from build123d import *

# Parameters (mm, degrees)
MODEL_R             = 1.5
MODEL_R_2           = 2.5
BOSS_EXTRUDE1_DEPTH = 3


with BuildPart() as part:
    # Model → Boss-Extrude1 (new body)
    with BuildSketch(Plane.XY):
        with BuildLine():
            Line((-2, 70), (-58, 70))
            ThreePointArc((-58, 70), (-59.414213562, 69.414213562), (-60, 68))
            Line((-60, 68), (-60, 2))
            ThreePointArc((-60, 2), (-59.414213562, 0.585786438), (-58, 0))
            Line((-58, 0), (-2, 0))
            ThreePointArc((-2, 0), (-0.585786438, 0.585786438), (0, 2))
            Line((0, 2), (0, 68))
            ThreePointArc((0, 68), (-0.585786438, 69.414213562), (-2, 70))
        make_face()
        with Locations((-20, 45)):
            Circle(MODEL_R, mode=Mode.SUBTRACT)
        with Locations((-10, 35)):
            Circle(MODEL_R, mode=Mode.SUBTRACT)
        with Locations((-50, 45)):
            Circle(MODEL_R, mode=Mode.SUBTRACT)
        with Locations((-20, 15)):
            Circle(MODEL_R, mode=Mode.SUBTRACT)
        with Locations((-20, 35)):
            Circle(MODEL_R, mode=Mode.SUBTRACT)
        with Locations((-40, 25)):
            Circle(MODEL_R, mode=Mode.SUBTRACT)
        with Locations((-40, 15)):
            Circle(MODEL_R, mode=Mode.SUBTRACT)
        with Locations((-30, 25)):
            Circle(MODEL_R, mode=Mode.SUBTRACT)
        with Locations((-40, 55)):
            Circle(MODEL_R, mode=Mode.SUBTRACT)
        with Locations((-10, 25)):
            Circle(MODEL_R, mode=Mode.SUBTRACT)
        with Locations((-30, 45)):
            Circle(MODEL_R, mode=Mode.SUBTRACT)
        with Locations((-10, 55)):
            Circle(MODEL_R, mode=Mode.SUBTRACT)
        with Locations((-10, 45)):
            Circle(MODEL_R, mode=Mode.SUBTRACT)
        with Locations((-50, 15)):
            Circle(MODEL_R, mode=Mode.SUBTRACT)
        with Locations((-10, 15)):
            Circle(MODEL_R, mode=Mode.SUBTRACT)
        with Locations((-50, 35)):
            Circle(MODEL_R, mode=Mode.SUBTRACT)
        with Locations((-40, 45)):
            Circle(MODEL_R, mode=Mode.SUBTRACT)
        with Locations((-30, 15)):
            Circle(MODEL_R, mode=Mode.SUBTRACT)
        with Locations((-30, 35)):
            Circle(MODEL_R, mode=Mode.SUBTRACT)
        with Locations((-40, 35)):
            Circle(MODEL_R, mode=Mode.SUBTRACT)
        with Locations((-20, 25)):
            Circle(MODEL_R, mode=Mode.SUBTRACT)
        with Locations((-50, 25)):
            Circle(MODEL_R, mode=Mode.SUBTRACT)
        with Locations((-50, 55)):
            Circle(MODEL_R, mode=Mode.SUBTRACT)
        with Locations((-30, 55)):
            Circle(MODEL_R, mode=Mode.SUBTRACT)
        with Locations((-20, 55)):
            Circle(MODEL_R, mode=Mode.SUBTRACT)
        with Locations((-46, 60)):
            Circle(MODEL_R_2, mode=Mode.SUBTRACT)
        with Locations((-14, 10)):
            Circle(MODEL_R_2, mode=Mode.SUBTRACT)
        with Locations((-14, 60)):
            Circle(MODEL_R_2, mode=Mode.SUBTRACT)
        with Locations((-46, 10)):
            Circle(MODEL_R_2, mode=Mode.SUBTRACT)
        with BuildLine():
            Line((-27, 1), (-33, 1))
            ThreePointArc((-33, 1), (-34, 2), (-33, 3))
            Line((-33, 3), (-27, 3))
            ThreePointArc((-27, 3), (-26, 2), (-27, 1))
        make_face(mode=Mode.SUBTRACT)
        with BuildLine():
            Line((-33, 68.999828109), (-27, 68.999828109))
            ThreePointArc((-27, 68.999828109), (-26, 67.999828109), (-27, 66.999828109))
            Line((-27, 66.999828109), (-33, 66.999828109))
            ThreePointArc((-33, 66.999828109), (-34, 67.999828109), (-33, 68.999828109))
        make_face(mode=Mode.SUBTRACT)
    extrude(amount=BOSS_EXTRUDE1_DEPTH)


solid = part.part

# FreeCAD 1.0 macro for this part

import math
import FreeCAD as App
import Part
import Sketcher
from FreeCAD import Vector
Q = App.Units.Quantity

doc = App.newDocument("Part")
params = doc.addObject("Spreadsheet::Sheet", "Params")
for row, (alias, value) in enumerate([
    ("sketch1_diameter", "3 mm"),
    ("sketch1_diameter2", "5 mm"),
    ("sketch1_radius", "2 mm"),
    ("sketch1_radius2", "1 mm"),
    ("sketch1_width", "56 mm"),
    ("pad1_length", "3 mm"),
], start=1):
    params.set(f"A{row}", alias)
    params.set(f"B{row}", "=" + value)
    params.setAlias(f"B{row}", alias)

body = doc.addObject("PartDesign::Body", "Body")

sketch1 = doc.addObject("Sketcher::SketchObject", "Sketch")
body.addObject(sketch1)
sketch1.AttachmentSupport = (doc.XY_Plane, [""])
sketch1.MapMode = "FlatFace"
sketch1.addGeometry([
    Part.LineSegment(Vector(-2, 70, 0), Vector(-58, 70, 0)),
    Part.ArcOfCircle(Part.Circle(Vector(-58, 68, 0), Vector(0, 0, 1), 2), math.radians(90), math.radians(180)),
    Part.LineSegment(Vector(-60, 68, 0), Vector(-60, 2, 0)),
    Part.ArcOfCircle(Part.Circle(Vector(-58, 2, 0), Vector(0, 0, 1), 2), math.radians(-180), math.radians(-90)),
    Part.LineSegment(Vector(-58, 0, 0), Vector(-2, 0, 0)),
    Part.ArcOfCircle(Part.Circle(Vector(-2, 2, 0), Vector(0, 0, 1), 2), math.radians(-90), math.radians(0)),
    Part.LineSegment(Vector(0, 2, 0), Vector(0, 68, 0)),
    Part.ArcOfCircle(Part.Circle(Vector(-2, 68, 0), Vector(0, 0, 1), 2), math.radians(0), math.radians(90)),
    Part.Circle(Vector(-50, 15, 0), Vector(0, 0, 1), 1.5),
    Part.Circle(Vector(-46, 10, 0), Vector(0, 0, 1), 2.5),
    Part.Circle(Vector(-40, 15, 0), Vector(0, 0, 1), 1.5),
    Part.Circle(Vector(-50, 25, 0), Vector(0, 0, 1), 1.5),
    Part.Circle(Vector(-40, 25, 0), Vector(0, 0, 1), 1.5),
    Part.ArcOfCircle(Part.Circle(Vector(-27, 2, 0), Vector(0, 0, 1), 1), math.radians(-90), math.radians(90)),
    Part.LineSegment(Vector(-27, 1, 0), Vector(-33, 1, 0)),
    Part.ArcOfCircle(Part.Circle(Vector(-33, 2, 0), Vector(0, 0, 1), 1), math.radians(90), math.radians(270)),
    Part.LineSegment(Vector(-33, 3, 0), Vector(-27, 3, 0)),
    Part.Circle(Vector(-30, 15, 0), Vector(0, 0, 1), 1.5),
    Part.Circle(Vector(-20, 15, 0), Vector(0, 0, 1), 1.5),
    Part.Circle(Vector(-14, 10, 0), Vector(0, 0, 1), 2.5),
    Part.Circle(Vector(-10, 15, 0), Vector(0, 0, 1), 1.5),
    Part.Circle(Vector(-30, 25, 0), Vector(0, 0, 1), 1.5),
    Part.Circle(Vector(-20, 25, 0), Vector(0, 0, 1), 1.5),
    Part.Circle(Vector(-10, 25, 0), Vector(0, 0, 1), 1.5),
    Part.Circle(Vector(-50, 35, 0), Vector(0, 0, 1), 1.5),
    Part.Circle(Vector(-50, 45, 0), Vector(0, 0, 1), 1.5),
    Part.Circle(Vector(-40, 35, 0), Vector(0, 0, 1), 1.5),
    Part.Circle(Vector(-40, 45, 0), Vector(0, 0, 1), 1.5),
    Part.Circle(Vector(-50, 55, 0), Vector(0, 0, 1), 1.5),
    Part.Circle(Vector(-46, 60, 0), Vector(0, 0, 1), 2.5),
    Part.Circle(Vector(-40, 55, 0), Vector(0, 0, 1), 1.5),
    Part.Circle(Vector(-30, 35, 0), Vector(0, 0, 1), 1.5),
    Part.Circle(Vector(-20, 35, 0), Vector(0, 0, 1), 1.5),
    Part.Circle(Vector(-30, 45, 0), Vector(0, 0, 1), 1.5),
    Part.Circle(Vector(-20, 45, 0), Vector(0, 0, 1), 1.5),
    Part.Circle(Vector(-10, 35, 0), Vector(0, 0, 1), 1.5),
    Part.Circle(Vector(-10, 45, 0), Vector(0, 0, 1), 1.5),
    Part.Circle(Vector(-30, 55, 0), Vector(0, 0, 1), 1.5),
    Part.Circle(Vector(-20, 55, 0), Vector(0, 0, 1), 1.5),
    Part.ArcOfCircle(Part.Circle(Vector(-33, 67.999828, 0), Vector(0, 0, 1), 1), math.radians(90), math.radians(270)),
    Part.LineSegment(Vector(-33, 68.999828, 0), Vector(-27, 68.999828, 0)),
    Part.ArcOfCircle(Part.Circle(Vector(-27, 67.999828, 0), Vector(0, 0, 1), 1), math.radians(-90), math.radians(90)),
    Part.LineSegment(Vector(-27, 66.999828, 0), Vector(-33, 66.999828, 0)),
    Part.Circle(Vector(-14, 60, 0), Vector(0, 0, 1), 2.5),
    Part.Circle(Vector(-10, 55, 0), Vector(0, 0, 1), 1.5),
], False)
sketch1.addConstraint([
    Sketcher.Constraint("Tangent", 0, 2, 1, 1),
    Sketcher.Constraint("Tangent", 1, 2, 2, 1),
    Sketcher.Constraint("Tangent", 2, 2, 3, 1),
    Sketcher.Constraint("Tangent", 3, 2, 4, 1),
    Sketcher.Constraint("Tangent", 4, 2, 5, 1),
    Sketcher.Constraint("Tangent", 5, 2, 6, 1),
    Sketcher.Constraint("Tangent", 6, 2, 7, 1),
    Sketcher.Constraint("Tangent", 7, 2, 0, 1),
    Sketcher.Constraint("Tangent", 13, 1, 14, 1),
    Sketcher.Constraint("Tangent", 14, 2, 15, 2),
    Sketcher.Constraint("Tangent", 15, 1, 16, 1),
    Sketcher.Constraint("Tangent", 16, 2, 13, 2),
    Sketcher.Constraint("Tangent", 39, 1, 40, 1),
    Sketcher.Constraint("Tangent", 40, 2, 41, 2),
    Sketcher.Constraint("Tangent", 41, 1, 42, 1),
    Sketcher.Constraint("Tangent", 42, 2, 39, 2),
    Sketcher.Constraint("Horizontal", 0),
    Sketcher.Constraint("Vertical", 2),
    Sketcher.Constraint("Horizontal", 4),
    Sketcher.Constraint("Vertical", 6),
    Sketcher.Constraint("Horizontal", 14),
    Sketcher.Constraint("Horizontal", 16),
    Sketcher.Constraint("Horizontal", 40),
    Sketcher.Constraint("Horizontal", 42),
    Sketcher.Constraint("Equal", 1, 3),
    Sketcher.Constraint("Equal", 3, 5),
    Sketcher.Constraint("Equal", 5, 7),
    Sketcher.Constraint("Equal", 8, 10),
    Sketcher.Constraint("Equal", 10, 11),
    Sketcher.Constraint("Equal", 11, 12),
    Sketcher.Constraint("Equal", 12, 17),
    Sketcher.Constraint("Equal", 17, 18),
    Sketcher.Constraint("Equal", 9, 19),
    Sketcher.Constraint("Equal", 18, 20),
    Sketcher.Constraint("Equal", 20, 21),
    Sketcher.Constraint("Equal", 21, 22),
    Sketcher.Constraint("Equal", 22, 23),
    Sketcher.Constraint("Equal", 23, 24),
    Sketcher.Constraint("Equal", 24, 25),
    Sketcher.Constraint("Equal", 25, 26),
    Sketcher.Constraint("Equal", 26, 27),
    Sketcher.Constraint("Equal", 27, 28),
    Sketcher.Constraint("Equal", 19, 29),
    Sketcher.Constraint("Equal", 28, 30),
    Sketcher.Constraint("Equal", 30, 31),
    Sketcher.Constraint("Equal", 31, 32),
    Sketcher.Constraint("Equal", 32, 33),
    Sketcher.Constraint("Equal", 33, 34),
    Sketcher.Constraint("Equal", 34, 35),
    Sketcher.Constraint("Equal", 35, 36),
    Sketcher.Constraint("Equal", 36, 37),
    Sketcher.Constraint("Equal", 37, 38),
    Sketcher.Constraint("Equal", 15, 39),
    Sketcher.Constraint("Equal", 29, 43),
    Sketcher.Constraint("Equal", 38, 44),
    Sketcher.Constraint("PointOnObject", 3, 2, -1),
    Sketcher.Constraint("PointOnObject", 5, 2, -2),
    Sketcher.Constraint("Horizontal", 8, 3, 10, 3),
    Sketcher.Constraint("Horizontal", 11, 3, 12, 3),
    Sketcher.Constraint("Horizontal", 5, 3, 13, 3),
    Sketcher.Constraint("Horizontal", 10, 3, 17, 3),
    Sketcher.Constraint("Horizontal", 17, 3, 18, 3),
    Sketcher.Constraint("Horizontal", 9, 3, 19, 3),
    Sketcher.Constraint("Horizontal", 18, 3, 20, 3),
    Sketcher.Constraint("Horizontal", 12, 3, 21, 3),
    Sketcher.Constraint("Horizontal", 21, 3, 22, 3),
    Sketcher.Constraint("Horizontal", 22, 3, 23, 3),
    Sketcher.Constraint("Horizontal", 24, 3, 26, 3),
    Sketcher.Constraint("Horizontal", 25, 3, 27, 3),
    Sketcher.Constraint("Horizontal", 28, 3, 30, 3),
    Sketcher.Constraint("Horizontal", 26, 3, 31, 3),
    Sketcher.Constraint("Horizontal", 31, 3, 32, 3),
    Sketcher.Constraint("Horizontal", 27, 3, 33, 3),
    Sketcher.Constraint("Horizontal", 33, 3, 34, 3),
    Sketcher.Constraint("Horizontal", 32, 3, 35, 3),
    Sketcher.Constraint("Horizontal", 34, 3, 36, 3),
    Sketcher.Constraint("Horizontal", 30, 3, 37, 3),
    Sketcher.Constraint("Horizontal", 37, 3, 38, 3),
    Sketcher.Constraint("Horizontal", 29, 3, 43, 3),
    Sketcher.Constraint("Horizontal", 38, 3, 44, 3),
    Sketcher.Constraint("Vertical", 8, 3, 11, 3),
    Sketcher.Constraint("Vertical", 10, 3, 12, 3),
    Sketcher.Constraint("Vertical", 17, 3, 21, 3),
    Sketcher.Constraint("Vertical", 18, 3, 22, 3),
    Sketcher.Constraint("Vertical", 20, 3, 23, 3),
    Sketcher.Constraint("Vertical", 11, 3, 24, 3),
    Sketcher.Constraint("Vertical", 24, 3, 25, 3),
    Sketcher.Constraint("Vertical", 12, 3, 26, 3),
    Sketcher.Constraint("Vertical", 26, 3, 27, 3),
    Sketcher.Constraint("Vertical", 25, 3, 28, 3),
    Sketcher.Constraint("Vertical", 9, 3, 29, 3),
    Sketcher.Constraint("Vertical", 27, 3, 30, 3),
    Sketcher.Constraint("Vertical", 21, 3, 31, 3),
    Sketcher.Constraint("Vertical", 22, 3, 32, 3),
    Sketcher.Constraint("Vertical", 31, 3, 33, 3),
    Sketcher.Constraint("Vertical", 32, 3, 34, 3),
    Sketcher.Constraint("Vertical", 23, 3, 35, 3),
    Sketcher.Constraint("Vertical", 35, 3, 36, 3),
    Sketcher.Constraint("Vertical", 33, 3, 37, 3),
    Sketcher.Constraint("Vertical", 34, 3, 38, 3),
    Sketcher.Constraint("Vertical", 15, 3, 39, 3),
    Sketcher.Constraint("Vertical", 13, 3, 41, 3),
    Sketcher.Constraint("Vertical", 19, 3, 43, 3),
    Sketcher.Constraint("Vertical", 36, 3, 44, 3),
    Sketcher.Constraint("Diameter", 8, Q("3 mm")),
    Sketcher.Constraint("Diameter", 9, Q("5 mm")),
    Sketcher.Constraint("Radius", 1, Q("2 mm")),
    Sketcher.Constraint("Radius", 13, Q("1 mm")),
    Sketcher.Constraint("DistanceX", 0, 2, 0, 1, Q("56 mm")),
    Sketcher.Constraint("DistanceX", 14, 2, 14, 1, Q("6 mm")),
    Sketcher.Constraint("DistanceY", 2, 2, 2, 1, Q("66 mm")),
    Sketcher.Constraint("DistanceX", 8, 3, -1, 1, Q("50 mm")),
    Sketcher.Constraint("DistanceY", -1, 1, 8, 3, Q("15 mm")),
    Sketcher.Constraint("DistanceX", 9, 3, -1, 1, Q("46 mm")),
    Sketcher.Constraint("DistanceY", -1, 1, 9, 3, Q("10 mm")),
    Sketcher.Constraint("DistanceX", 10, 3, -1, 1, Q("40 mm")),
    Sketcher.Constraint("DistanceY", -1, 1, 11, 3, Q("25 mm")),
    Sketcher.Constraint("DistanceX", 13, 3, -1, 1, Q("27 mm")),
    Sketcher.Constraint("DistanceX", 17, 3, -1, 1, Q("30 mm")),
    Sketcher.Constraint("DistanceX", 18, 3, -1, 1, Q("20 mm")),
    Sketcher.Constraint("DistanceX", 19, 3, -1, 1, Q("14 mm")),
    Sketcher.Constraint("DistanceX", 20, 3, -1, 1, Q("10 mm")),
    Sketcher.Constraint("DistanceY", -1, 1, 24, 3, Q("35 mm")),
    Sketcher.Constraint("DistanceY", -1, 1, 25, 3, Q("45 mm")),
    Sketcher.Constraint("DistanceY", -1, 1, 28, 3, Q("55 mm")),
    Sketcher.Constraint("DistanceY", -1, 1, 29, 3, Q("60 mm")),
    Sketcher.Constraint("DistanceY", -1, 1, 39, 3, Q("67.999828 mm")),
])
sketch1.setExpression("Constraints[104]", "Params.sketch1_diameter")
sketch1.setExpression("Constraints[105]", "Params.sketch1_diameter2")
sketch1.setExpression("Constraints[106]", "Params.sketch1_radius")
sketch1.setExpression("Constraints[107]", "Params.sketch1_radius2")
sketch1.setExpression("Constraints[108]", "Params.sketch1_width")
pad1 = doc.addObject("PartDesign::Pad", "Pad")
body.addObject(pad1)
pad1.Profile = sketch1
pad1.setExpression("Length", "Params.pad1_length")

doc.recompute()
